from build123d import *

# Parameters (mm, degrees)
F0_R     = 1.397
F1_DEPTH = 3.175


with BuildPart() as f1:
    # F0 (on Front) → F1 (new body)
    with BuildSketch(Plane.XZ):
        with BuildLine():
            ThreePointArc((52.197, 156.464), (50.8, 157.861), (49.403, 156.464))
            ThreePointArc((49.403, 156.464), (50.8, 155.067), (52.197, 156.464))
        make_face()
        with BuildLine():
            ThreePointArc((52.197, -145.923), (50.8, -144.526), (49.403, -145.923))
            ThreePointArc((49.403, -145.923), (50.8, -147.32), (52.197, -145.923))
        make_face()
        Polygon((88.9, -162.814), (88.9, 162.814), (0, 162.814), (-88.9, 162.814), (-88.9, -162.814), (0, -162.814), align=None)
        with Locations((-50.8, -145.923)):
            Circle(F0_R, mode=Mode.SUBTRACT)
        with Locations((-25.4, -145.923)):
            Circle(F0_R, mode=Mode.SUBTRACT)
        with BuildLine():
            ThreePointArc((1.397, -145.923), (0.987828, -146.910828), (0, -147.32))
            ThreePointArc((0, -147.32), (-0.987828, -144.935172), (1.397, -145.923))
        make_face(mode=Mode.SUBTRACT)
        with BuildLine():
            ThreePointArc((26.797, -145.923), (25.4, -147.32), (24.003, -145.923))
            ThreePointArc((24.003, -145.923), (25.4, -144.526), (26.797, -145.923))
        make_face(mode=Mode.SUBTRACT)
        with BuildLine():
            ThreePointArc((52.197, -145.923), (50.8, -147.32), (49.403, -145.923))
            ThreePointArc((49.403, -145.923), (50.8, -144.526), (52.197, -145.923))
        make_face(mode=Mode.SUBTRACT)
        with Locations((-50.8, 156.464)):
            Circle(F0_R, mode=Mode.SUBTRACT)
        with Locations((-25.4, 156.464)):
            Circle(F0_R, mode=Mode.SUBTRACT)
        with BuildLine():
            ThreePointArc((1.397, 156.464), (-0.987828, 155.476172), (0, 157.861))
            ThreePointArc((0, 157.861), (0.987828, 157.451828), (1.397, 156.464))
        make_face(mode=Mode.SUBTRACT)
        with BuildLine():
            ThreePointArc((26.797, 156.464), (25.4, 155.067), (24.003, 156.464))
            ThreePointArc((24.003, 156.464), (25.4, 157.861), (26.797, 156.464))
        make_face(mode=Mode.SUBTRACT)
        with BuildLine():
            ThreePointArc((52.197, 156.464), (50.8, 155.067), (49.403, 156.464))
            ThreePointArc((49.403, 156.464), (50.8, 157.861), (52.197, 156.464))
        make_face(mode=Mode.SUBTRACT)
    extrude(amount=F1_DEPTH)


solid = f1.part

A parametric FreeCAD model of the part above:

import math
import FreeCAD as App
import Part
import Sketcher
Q = App.Units.Quantity

doc = App.newDocument("Part")
params = doc.addObject("Spreadsheet::Sheet", "Params")
for row, (alias, value) in enumerate([
    ("sketch1_diameter", "0.11 in"),
    ("sketch1_width", "7 in"),
    ("sketch1_height", "12.82 in"),
    ("pad1_length", "0.125 in"),
], start=1):
    params.set(f"A{row}", alias)
    params.set(f"B{row}", "=" + value)
    params.setAlias(f"B{row}", alias)

body = doc.addObject("PartDesign::Body", "Body")

sketch1 = body.newObject("Sketcher::SketchObject", "Sketch")
sketch1.AttachmentSupport = (doc.getObject("XZ_Plane"), [""])
sketch1.MapMode = "FlatFace"
sketch1.addGeometry([
    Part.LineSegment(App.Vector(88.9, -162.8, 0), App.Vector(88.9, 162.8, 0)),
    Part.LineSegment(App.Vector(88.9, 162.8, 0), App.Vector(-88.9, 162.8, 0)),
    Part.LineSegment(App.Vector(-88.9, 162.8, 0), App.Vector(-88.9, -162.8, 0)),
    Part.LineSegment(App.Vector(-88.9, -162.8, 0), App.Vector(88.9, -162.8, 0)),
    Part.Circle(App.Vector(-50.8, -145.9, 0), App.Vector(0, 0, 1), 1.4),
    Part.Circle(App.Vector(-25.4, -145.9, 0), App.Vector(0, 0, 1), 1.4),
    Part.ArcOfCircle(Part.Circle(App.Vector(0, -145.9, 0), App.Vector(0, 0, 1), 1.4), math.radians(0), math.radians(270)),
    Part.ArcOfCircle(Part.Circle(App.Vector(0, -145.9, 0), App.Vector(0, 0, 1), 1.4), math.radians(-90), math.radians(0)),
    Part.Circle(App.Vector(25.4, -145.9, 0), App.Vector(0, 0, 1), 1.4),
    Part.Circle(App.Vector(50.8, -145.9, 0), App.Vector(0, 0, 1), 1.4),
    Part.Circle(App.Vector(-50.8, 156.5, 0), App.Vector(0, 0, 1), 1.4),
    Part.Circle(App.Vector(-25.4, 156.5, 0), App.Vector(0, 0, 1), 1.4),
    Part.ArcOfCircle(Part.Circle(App.Vector(0, 156.5, 0), App.Vector(0, 0, 1), 1.4), math.radians(0), math.radians(90)),
    Part.ArcOfCircle(Part.Circle(App.Vector(0, 156.5, 0), App.Vector(0, 0, 1), 1.4), math.radians(90), math.radians(360)),
    Part.Circle(App.Vector(25.4, 156.5, 0), App.Vector(0, 0, 1), 1.4),
    Part.Circle(App.Vector(50.8, 156.5, 0), App.Vector(0, 0, 1), 1.4),
], False)
sketch1.addConstraint([
    Sketcher.Constraint("Coincident", 0, 2, 1, 1),
    Sketcher.Constraint("Coincident", 1, 2, 2, 1),
    Sketcher.Constraint("Coincident", 2, 2, 3, 1),
    Sketcher.Constraint("Coincident", 3, 2, 0, 1),
    Sketcher.Constraint("Tangent", 6, 1, 7, 2),
    Sketcher.Constraint("Coincident", 7, 1, 6, 2),
    Sketcher.Constraint("Tangent", 12, 1, 13, 2),
    Sketcher.Constraint("Coincident", 13, 1, 12, 2),
    Sketcher.Constraint("Vertical", 0),
    Sketcher.Constraint("Horizontal", 1),
    Sketcher.Constraint("Vertical", 2),
    Sketcher.Constraint("Horizontal", 3),
    Sketcher.Constraint("Equal", 4, 5),
    Sketcher.Constraint("Equal", 5, 6),
    Sketcher.Constraint("Equal", 7, 8),
    Sketcher.Constraint("Equal", 8, 9),
    Sketcher.Constraint("Equal", 9, 10),
    Sketcher.Constraint("Equal", 10, 11),
    Sketcher.Constraint("Equal", 11, 12),
    Sketcher.Constraint("Equal", 13, 14),
    Sketcher.Constraint("Equal", 14, 15),
    Sketcher.Constraint("Symmetric", 0, 2, 2, 2, -1, 1),
    Sketcher.Constraint("Symmetric", 5, 3, 8, 3, -2),
    Sketcher.Constraint("Symmetric", 4, 3, 9, 3, -2),
    Sketcher.Constraint("Symmetric", 11, 3, 14, 3, -2),
    Sketcher.Constraint("Symmetric", 10, 3, 15, 3, -2),
    Sketcher.Constraint("PointOnObject", 6, 3, -2),
    Sketcher.Constraint("PointOnObject", 12, 3, -2),
    Sketcher.Constraint("PointOnObject", 7, 1, -2),
    Sketcher.Constraint("PointOnObject", 13, 1, -2),
    Sketcher.Constraint("Horizontal", 4, 3, 5, 3),
    Sketcher.Constraint("Horizontal", 5, 3, 6, 3),
    Sketcher.Constraint("Horizontal", 10, 3, 11, 3),
    Sketcher.Constraint("Horizontal", 11, 3, 12, 3),
    Sketcher.Constraint("Horizontal", 9, 3, 6, 1),
    Sketcher.Constraint("Horizontal", 15, 3, 12, 1),
    Sketcher.Constraint("Vertical", 4, 3, 10, 3),
    Sketcher.Constraint("Vertical", 5, 3, 11, 3),
    Sketcher.Constraint("Diameter", 4, Q("0.11 in")),
    Sketcher.Constraint("DistanceX", 1, 2, 1, 1, Q("7 in")),
    Sketcher.Constraint("DistanceX", 4, 3, -1, 1, Q("2 in")),
    Sketcher.Constraint("DistanceX", 5, 3, -1, 1, Q("1 in")),
    Sketcher.Constraint("DistanceY", 0, 1, 0, 2, Q("12.82 in")),
    Sketcher.Constraint("DistanceY", 7, 1, -1, 1, Q("5.8 in")),
    Sketcher.Constraint("DistanceY", -1, 1, 10, 3, Q("6.16 in")),
])
sketch1.setExpression("Constraints[38]", "Params.sketch1_diameter")
sketch1.setExpression("Constraints[39]", "Params.sketch1_width")
sketch1.setExpression("Constraints[42]", "Params.sketch1_height")
pad1 = body.newObject("PartDesign::Pad", "Pad")
pad1.Profile = sketch1
pad1.setExpression("Length", "Params.pad1_length")

doc.recompute()
